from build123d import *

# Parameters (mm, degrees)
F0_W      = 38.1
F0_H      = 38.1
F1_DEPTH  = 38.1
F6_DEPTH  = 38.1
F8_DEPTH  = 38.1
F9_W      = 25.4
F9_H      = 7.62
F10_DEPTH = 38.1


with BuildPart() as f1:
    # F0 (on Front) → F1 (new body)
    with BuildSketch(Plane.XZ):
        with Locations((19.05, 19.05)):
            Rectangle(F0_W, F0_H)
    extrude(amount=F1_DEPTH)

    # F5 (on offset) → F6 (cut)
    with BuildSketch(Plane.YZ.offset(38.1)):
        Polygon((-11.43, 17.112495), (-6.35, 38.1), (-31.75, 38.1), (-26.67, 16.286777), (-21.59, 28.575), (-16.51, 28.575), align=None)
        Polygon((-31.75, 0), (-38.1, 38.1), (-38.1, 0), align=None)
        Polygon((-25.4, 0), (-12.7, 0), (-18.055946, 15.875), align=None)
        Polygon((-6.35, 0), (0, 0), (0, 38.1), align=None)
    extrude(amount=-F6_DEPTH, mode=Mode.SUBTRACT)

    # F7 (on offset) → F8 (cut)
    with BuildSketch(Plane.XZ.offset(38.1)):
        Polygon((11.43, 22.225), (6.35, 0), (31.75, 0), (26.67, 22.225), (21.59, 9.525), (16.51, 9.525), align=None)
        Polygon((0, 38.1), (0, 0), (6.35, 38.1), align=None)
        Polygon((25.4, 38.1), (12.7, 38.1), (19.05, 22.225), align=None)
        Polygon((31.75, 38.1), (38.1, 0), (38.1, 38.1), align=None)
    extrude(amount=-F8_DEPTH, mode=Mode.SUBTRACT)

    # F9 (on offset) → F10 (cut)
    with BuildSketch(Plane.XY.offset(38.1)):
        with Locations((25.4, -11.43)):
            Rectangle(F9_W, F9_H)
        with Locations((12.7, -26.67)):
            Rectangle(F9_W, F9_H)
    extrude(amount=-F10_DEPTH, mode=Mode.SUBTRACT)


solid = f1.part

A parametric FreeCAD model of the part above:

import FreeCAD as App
import Part
import Sketcher
from FreeCAD import Vector
Q = App.Units.Quantity


def add_polygon(sketch, points):
    """Adds a closed chain of lines whose ends are joined by coincident constraints."""
    first, n = sketch.GeometryCount, len(points)
    for a, b in zip(points, points[1:] + points[:1]):
        sketch.addGeometry(Part.LineSegment(App.Vector(*a, 0), App.Vector(*b, 0)), False)
    for i in range(n):
        sketch.addConstraint(Sketcher.Constraint("Coincident", first + i, 2, first + (i + 1) % n, 1))

doc = App.newDocument("Part")
params = doc.addObject("Spreadsheet::Sheet", "Params")
for row, (alias, value) in enumerate([
    ("sketch1_width", "1.5 in"),
    ("pad1_length", "1.5 in"),
    ("sketch2_width", "1 in"),
    ("sketch2_width2", "0.2 in"),
    ("sketch2_width3", "0.5 in"),
    ("sketch2_height", "1.5 in"),
    ("pocket1_length", "1.5 in"),
    ("sketch3_width", "1 in"),
    ("sketch3_width2", "0.2 in"),
    ("sketch3_width3", "0.5 in"),
    ("sketch3_height", "1.5 in"),
    ("pocket2_length", "1.5 in"),
    ("sketch4_width", "1 in"),
    ("sketch4_height", "0.3 in"),
    ("pocket3_length", "1.5 in"),
], start=1):
    params.set(f"A{row}", alias)
    params.set(f"B{row}", "=" + value)
    params.setAlias(f"B{row}", alias)

body = doc.addObject("PartDesign::Body", "Body")

# Sketch on XZ plane
sketch1 = body.newObject("Sketcher::SketchObject", "Sketch")
sketch1.AttachmentSupport = (doc.getObject("XZ_Plane"), [""])
sketch1.MapMode = "FlatFace"
add_polygon(sketch1, [(0, 38.1), (0, 0), (38.1, 0), (38.1, 38.1)])  # lines 0-3
sketch1.addConstraint([
    Sketcher.Constraint("Vertical", 0),
    Sketcher.Constraint("Horizontal", 1),
    Sketcher.Constraint("Vertical", 2),
    Sketcher.Constraint("Horizontal", 3),
    Sketcher.Constraint("Coincident", 0, 2, -1, 1),
    Sketcher.Constraint("Equal", 3, 0),
    Sketcher.Constraint("DistanceX", 1, 1, 1, 2, Q("1.5 in")),
])
sketch1.setExpression("Constraints[10]", "Params.sketch1_width")
pad1 = body.newObject("PartDesign::Pad", "Pad")
pad1.Profile = sketch1
pad1.setExpression("Length", "Params.pad1_length")

# Sketch on YZ plane
sketch2 = body.newObject("Sketcher::SketchObject", "Sketch001")
sketch2.AttachmentSupport = (doc.getObject("YZ_Plane"), [""])
sketch2.MapMode = "FlatFace"
sketch2.AttachmentOffset = App.Placement(Vector(0, 0, 1.5 * 25.4), App.Rotation())
add_polygon(sketch2, [(-11.43, 17.112495), (-6.35, 38.1), (-31.75, 38.1), (-26.67, 16.286777), (-21.59, 28.575), (-16.51, 28.575)])  # lines 0-5
add_polygon(sketch2, [(-31.75, 0), (-38.1, 38.1), (-38.1, 0)])  # lines 6-8
add_polygon(sketch2, [(-25.4, 0), (-12.7, 0), (-18.055946, 15.875)])  # lines 9-11
add_polygon(sketch2, [(-6.35, 0), (0, 0), (0, 38.1)])  # lines 12-14
sketch2.addConstraint([
    Sketcher.Constraint("Horizontal", 1),
    Sketcher.Constraint("Horizontal", 4),
    Sketcher.Constraint("Vertical", 7),
    Sketcher.Constraint("Horizontal", 8),
    Sketcher.Constraint("Horizontal", 9),
    Sketcher.Constraint("Horizontal", 12),
    Sketcher.Constraint("Vertical", 13),
    Sketcher.Constraint("Coincident", 12, 2, -1, 1),
    Sketcher.Constraint("PointOnObject", 7, 2, -1),
    Sketcher.Constraint("PointOnObject", 9, 2, -1),
    Sketcher.Constraint("Horizontal", 1, 2, 6, 2),
    Sketcher.Constraint("Horizontal", 6, 2, 13, 2),
    Sketcher.Constraint("Vertical", 1, 2, 8, 2),
    Sketcher.Constraint("Vertical", 0, 2, 14, 2),
    Sketcher.Constraint("Equal", 8, 12),
    Sketcher.Constraint("DistanceX", 1, 2, 1, 1, Q("1 in")),
    Sketcher.Constraint("DistanceX", 4, 1, 4, 2, Q("0.2 in")),
    Sketcher.Constraint("DistanceX", 9, 1, 9, 2, Q("0.5 in")),
    Sketcher.Constraint("DistanceY", 7, 2, 7, 1, Q("1.5 in")),
    Sketcher.Constraint("DistanceX", 11, 2, -1, 1, Q("1 in")),
    Sketcher.Constraint("DistanceX", 7, 2, 9, 2, Q("1 in")),
    Sketcher.Constraint("DistanceX", 1, 2, 2, 2, Q("0.2 in")),
    Sketcher.Constraint("DistanceX", 2, 2, 3, 2, Q("0.2 in")),
    Sketcher.Constraint("DistanceX", 4, 2, 5, 2, Q("0.2 in")),
    Sketcher.Constraint("DistanceY", 10, 2, 4, 2, Q("0.5 in")),
    Sketcher.Constraint("DistanceY", -1, 1, 3, 2, Q("1.125 in")),
    Sketcher.Constraint("Distance", 0, 21.593558),
    Sketcher.Constraint("Distance", 11, 17.491448),
    Sketcher.Constraint("Distance", 2, 22.396944),
])
sketch2.setExpression("Constraints[30]", "Params.sketch2_width")
sketch2.setExpression("Constraints[31]", "Params.sketch2_width2")
sketch2.setExpression("Constraints[32]", "Params.sketch2_width3")
sketch2.setExpression("Constraints[33]", "Params.sketch2_height")
pocket1 = body.newObject("PartDesign::Pocket", "Pocket")
pocket1.Profile = sketch2
pocket1.setExpression("Length", "Params.pocket1_length")

# Sketch on XZ plane
sketch3 = body.newObject("Sketcher::SketchObject", "Sketch002")
sketch3.AttachmentSupport = (doc.getObject("XZ_Plane"), [""])
sketch3.MapMode = "FlatFace"
sketch3.AttachmentOffset = App.Placement(Vector(0, 0, 1.5 * 25.4), App.Rotation())
add_polygon(sketch3, [(11.43, 22.225), (6.35, 0), (31.75, 0), (26.67, 22.225), (21.59, 9.525), (16.51, 9.525)])  # lines 0-5
add_polygon(sketch3, [(0, 38.1), (0, 0), (6.35, 38.1)])  # lines 6-8
add_polygon(sketch3, [(25.4, 38.1), (12.7, 38.1), (19.05, 22.225)])  # lines 9-11
add_polygon(sketch3, [(31.75, 38.1), (38.1, 0), (38.1, 38.1)])  # lines 12-14
sketch3.addConstraint([
    Sketcher.Constraint("Horizontal", 1),
    Sketcher.Constraint("Horizontal", 4),
    Sketcher.Constraint("Vertical", 6),
    Sketcher.Constraint("Horizontal", 8),
    Sketcher.Constraint("Horizontal", 9),
    Sketcher.Constraint("Vertical", 13),
    Sketcher.Constraint("Horizontal", 14),
    Sketcher.Constraint("Coincident", 6, 2, -1, 1),
    Sketcher.Constraint("PointOnObject", 0, 2, -1),
    Sketcher.Constraint("PointOnObject", 12, 2, -1),
    Sketcher.Constraint("Parallel", 5, 10),
    Sketcher.Constraint("Parallel", 3, 11),
    Sketcher.Constraint("Horizontal", 2, 2, 5, 2),
    Sketcher.Constraint("Horizontal", 8, 2, 9, 2),
    Sketcher.Constraint("Horizontal", 5, 2, 10, 2),
    Sketcher.Constraint("Horizontal", 11, 2, 13, 2),
    Sketcher.Constraint("Vertical", 0, 2, 7, 2),
    Sketcher.Constraint("Vertical", 1, 2, 14, 2),
    Sketcher.Constraint("Equal", 8, 14),
    Sketcher.Constraint("Equal", 0, 2),
    Sketcher.Constraint("Equal", 3, 5),
    Sketcher.Constraint("DistanceX", 1, 1, 1, 2, Q("1 in")),
    Sketcher.Constraint("DistanceX", 4, 2, 4, 1, Q("0.2 in")),
    Sketcher.Constraint("DistanceX", 9, 2, 9, 1, Q("0.5 in")),
    Sketcher.Constraint("DistanceY", 6, 2, 6, 1, Q("1.5 in")),
    Sketcher.Constraint("DistanceX", -1, 1, 11, 2, Q("1 in")),
    Sketcher.Constraint("DistanceX", 9, 2, 13, 2, Q("1 in")),
    Sketcher.Constraint("DistanceX", 2, 2, 1, 2, Q("0.2 in")),
    Sketcher.Constraint("DistanceY", 3, 2, 2, 2, Q("0.5 in")),
])
sketch3.setExpression("Constraints[36]", "Params.sketch3_width")
sketch3.setExpression("Constraints[37]", "Params.sketch3_width2")
sketch3.setExpression("Constraints[38]", "Params.sketch3_width3")
sketch3.setExpression("Constraints[39]", "Params.sketch3_height")
pocket2 = body.newObject("PartDesign::Pocket", "Pocket001")
pocket2.Profile = sketch3
pocket2.setExpression("Length", "Params.pocket2_length")

# Sketch on XY plane
sketch4 = body.newObject("Sketcher::SketchObject", "Sketch003")
sketch4.AttachmentSupport = (doc.getObject("XY_Plane"), [""])
sketch4.MapMode = "FlatFace"
sketch4.AttachmentOffset = App.Placement(Vector(0, 0, 1.5 * 25.4), App.Rotation())
add_polygon(sketch4, [(12.7, -7.62), (12.7, -15.24), (38.1, -15.24), (38.1, -7.62)])  # lines 0-3
add_polygon(sketch4, [(0, -22.86), (0, -30.48), (25.4, -30.48), (25.4, -22.86)])  # lines 4-7
sketch4.addConstraint([
    Sketcher.Constraint("Vertical", 0),
    Sketcher.Constraint("Horizontal", 1),
    Sketcher.Constraint("Vertical", 2),
    Sketcher.Constraint("Horizontal", 3),
    Sketcher.Constraint("Vertical", 4),
    Sketcher.Constraint("Horizontal", 5),
    Sketcher.Constraint("Vertical", 6),
    Sketcher.Constraint("Horizontal", 7),
    Sketcher.Constraint("PointOnObject", 4, 2, -2),
    Sketcher.Constraint("Equal", 3, 5),
    Sketcher.Constraint("Equal", 2, 4),
    Sketcher.Constraint("DistanceX", 1, 1, 1, 2, Q("1 in")),
    Sketcher.Constraint("DistanceY", 0, 2, 0, 1, Q("0.3 in")),
    Sketcher.Constraint("DistanceX", -1, 1, 0, 2, Q("0.5 in")),
    Sketcher.Constraint("DistanceY", 0, 2, -1, 1, Q("0.6 in")),
    Sketcher.Constraint("DistanceY", 4, 2, -1, 1, Q("1.2 in")),
])
sketch4.setExpression("Constraints[19]", "Params.sketch4_width")
sketch4.setExpression("Constraints[20]", "Params.sketch4_height")
pocket3 = body.newObject("PartDesign::Pocket", "Pocket002")
pocket3.Profile = sketch4
pocket3.setExpression("Length", "Params.pocket3_length")

doc.recompute()
